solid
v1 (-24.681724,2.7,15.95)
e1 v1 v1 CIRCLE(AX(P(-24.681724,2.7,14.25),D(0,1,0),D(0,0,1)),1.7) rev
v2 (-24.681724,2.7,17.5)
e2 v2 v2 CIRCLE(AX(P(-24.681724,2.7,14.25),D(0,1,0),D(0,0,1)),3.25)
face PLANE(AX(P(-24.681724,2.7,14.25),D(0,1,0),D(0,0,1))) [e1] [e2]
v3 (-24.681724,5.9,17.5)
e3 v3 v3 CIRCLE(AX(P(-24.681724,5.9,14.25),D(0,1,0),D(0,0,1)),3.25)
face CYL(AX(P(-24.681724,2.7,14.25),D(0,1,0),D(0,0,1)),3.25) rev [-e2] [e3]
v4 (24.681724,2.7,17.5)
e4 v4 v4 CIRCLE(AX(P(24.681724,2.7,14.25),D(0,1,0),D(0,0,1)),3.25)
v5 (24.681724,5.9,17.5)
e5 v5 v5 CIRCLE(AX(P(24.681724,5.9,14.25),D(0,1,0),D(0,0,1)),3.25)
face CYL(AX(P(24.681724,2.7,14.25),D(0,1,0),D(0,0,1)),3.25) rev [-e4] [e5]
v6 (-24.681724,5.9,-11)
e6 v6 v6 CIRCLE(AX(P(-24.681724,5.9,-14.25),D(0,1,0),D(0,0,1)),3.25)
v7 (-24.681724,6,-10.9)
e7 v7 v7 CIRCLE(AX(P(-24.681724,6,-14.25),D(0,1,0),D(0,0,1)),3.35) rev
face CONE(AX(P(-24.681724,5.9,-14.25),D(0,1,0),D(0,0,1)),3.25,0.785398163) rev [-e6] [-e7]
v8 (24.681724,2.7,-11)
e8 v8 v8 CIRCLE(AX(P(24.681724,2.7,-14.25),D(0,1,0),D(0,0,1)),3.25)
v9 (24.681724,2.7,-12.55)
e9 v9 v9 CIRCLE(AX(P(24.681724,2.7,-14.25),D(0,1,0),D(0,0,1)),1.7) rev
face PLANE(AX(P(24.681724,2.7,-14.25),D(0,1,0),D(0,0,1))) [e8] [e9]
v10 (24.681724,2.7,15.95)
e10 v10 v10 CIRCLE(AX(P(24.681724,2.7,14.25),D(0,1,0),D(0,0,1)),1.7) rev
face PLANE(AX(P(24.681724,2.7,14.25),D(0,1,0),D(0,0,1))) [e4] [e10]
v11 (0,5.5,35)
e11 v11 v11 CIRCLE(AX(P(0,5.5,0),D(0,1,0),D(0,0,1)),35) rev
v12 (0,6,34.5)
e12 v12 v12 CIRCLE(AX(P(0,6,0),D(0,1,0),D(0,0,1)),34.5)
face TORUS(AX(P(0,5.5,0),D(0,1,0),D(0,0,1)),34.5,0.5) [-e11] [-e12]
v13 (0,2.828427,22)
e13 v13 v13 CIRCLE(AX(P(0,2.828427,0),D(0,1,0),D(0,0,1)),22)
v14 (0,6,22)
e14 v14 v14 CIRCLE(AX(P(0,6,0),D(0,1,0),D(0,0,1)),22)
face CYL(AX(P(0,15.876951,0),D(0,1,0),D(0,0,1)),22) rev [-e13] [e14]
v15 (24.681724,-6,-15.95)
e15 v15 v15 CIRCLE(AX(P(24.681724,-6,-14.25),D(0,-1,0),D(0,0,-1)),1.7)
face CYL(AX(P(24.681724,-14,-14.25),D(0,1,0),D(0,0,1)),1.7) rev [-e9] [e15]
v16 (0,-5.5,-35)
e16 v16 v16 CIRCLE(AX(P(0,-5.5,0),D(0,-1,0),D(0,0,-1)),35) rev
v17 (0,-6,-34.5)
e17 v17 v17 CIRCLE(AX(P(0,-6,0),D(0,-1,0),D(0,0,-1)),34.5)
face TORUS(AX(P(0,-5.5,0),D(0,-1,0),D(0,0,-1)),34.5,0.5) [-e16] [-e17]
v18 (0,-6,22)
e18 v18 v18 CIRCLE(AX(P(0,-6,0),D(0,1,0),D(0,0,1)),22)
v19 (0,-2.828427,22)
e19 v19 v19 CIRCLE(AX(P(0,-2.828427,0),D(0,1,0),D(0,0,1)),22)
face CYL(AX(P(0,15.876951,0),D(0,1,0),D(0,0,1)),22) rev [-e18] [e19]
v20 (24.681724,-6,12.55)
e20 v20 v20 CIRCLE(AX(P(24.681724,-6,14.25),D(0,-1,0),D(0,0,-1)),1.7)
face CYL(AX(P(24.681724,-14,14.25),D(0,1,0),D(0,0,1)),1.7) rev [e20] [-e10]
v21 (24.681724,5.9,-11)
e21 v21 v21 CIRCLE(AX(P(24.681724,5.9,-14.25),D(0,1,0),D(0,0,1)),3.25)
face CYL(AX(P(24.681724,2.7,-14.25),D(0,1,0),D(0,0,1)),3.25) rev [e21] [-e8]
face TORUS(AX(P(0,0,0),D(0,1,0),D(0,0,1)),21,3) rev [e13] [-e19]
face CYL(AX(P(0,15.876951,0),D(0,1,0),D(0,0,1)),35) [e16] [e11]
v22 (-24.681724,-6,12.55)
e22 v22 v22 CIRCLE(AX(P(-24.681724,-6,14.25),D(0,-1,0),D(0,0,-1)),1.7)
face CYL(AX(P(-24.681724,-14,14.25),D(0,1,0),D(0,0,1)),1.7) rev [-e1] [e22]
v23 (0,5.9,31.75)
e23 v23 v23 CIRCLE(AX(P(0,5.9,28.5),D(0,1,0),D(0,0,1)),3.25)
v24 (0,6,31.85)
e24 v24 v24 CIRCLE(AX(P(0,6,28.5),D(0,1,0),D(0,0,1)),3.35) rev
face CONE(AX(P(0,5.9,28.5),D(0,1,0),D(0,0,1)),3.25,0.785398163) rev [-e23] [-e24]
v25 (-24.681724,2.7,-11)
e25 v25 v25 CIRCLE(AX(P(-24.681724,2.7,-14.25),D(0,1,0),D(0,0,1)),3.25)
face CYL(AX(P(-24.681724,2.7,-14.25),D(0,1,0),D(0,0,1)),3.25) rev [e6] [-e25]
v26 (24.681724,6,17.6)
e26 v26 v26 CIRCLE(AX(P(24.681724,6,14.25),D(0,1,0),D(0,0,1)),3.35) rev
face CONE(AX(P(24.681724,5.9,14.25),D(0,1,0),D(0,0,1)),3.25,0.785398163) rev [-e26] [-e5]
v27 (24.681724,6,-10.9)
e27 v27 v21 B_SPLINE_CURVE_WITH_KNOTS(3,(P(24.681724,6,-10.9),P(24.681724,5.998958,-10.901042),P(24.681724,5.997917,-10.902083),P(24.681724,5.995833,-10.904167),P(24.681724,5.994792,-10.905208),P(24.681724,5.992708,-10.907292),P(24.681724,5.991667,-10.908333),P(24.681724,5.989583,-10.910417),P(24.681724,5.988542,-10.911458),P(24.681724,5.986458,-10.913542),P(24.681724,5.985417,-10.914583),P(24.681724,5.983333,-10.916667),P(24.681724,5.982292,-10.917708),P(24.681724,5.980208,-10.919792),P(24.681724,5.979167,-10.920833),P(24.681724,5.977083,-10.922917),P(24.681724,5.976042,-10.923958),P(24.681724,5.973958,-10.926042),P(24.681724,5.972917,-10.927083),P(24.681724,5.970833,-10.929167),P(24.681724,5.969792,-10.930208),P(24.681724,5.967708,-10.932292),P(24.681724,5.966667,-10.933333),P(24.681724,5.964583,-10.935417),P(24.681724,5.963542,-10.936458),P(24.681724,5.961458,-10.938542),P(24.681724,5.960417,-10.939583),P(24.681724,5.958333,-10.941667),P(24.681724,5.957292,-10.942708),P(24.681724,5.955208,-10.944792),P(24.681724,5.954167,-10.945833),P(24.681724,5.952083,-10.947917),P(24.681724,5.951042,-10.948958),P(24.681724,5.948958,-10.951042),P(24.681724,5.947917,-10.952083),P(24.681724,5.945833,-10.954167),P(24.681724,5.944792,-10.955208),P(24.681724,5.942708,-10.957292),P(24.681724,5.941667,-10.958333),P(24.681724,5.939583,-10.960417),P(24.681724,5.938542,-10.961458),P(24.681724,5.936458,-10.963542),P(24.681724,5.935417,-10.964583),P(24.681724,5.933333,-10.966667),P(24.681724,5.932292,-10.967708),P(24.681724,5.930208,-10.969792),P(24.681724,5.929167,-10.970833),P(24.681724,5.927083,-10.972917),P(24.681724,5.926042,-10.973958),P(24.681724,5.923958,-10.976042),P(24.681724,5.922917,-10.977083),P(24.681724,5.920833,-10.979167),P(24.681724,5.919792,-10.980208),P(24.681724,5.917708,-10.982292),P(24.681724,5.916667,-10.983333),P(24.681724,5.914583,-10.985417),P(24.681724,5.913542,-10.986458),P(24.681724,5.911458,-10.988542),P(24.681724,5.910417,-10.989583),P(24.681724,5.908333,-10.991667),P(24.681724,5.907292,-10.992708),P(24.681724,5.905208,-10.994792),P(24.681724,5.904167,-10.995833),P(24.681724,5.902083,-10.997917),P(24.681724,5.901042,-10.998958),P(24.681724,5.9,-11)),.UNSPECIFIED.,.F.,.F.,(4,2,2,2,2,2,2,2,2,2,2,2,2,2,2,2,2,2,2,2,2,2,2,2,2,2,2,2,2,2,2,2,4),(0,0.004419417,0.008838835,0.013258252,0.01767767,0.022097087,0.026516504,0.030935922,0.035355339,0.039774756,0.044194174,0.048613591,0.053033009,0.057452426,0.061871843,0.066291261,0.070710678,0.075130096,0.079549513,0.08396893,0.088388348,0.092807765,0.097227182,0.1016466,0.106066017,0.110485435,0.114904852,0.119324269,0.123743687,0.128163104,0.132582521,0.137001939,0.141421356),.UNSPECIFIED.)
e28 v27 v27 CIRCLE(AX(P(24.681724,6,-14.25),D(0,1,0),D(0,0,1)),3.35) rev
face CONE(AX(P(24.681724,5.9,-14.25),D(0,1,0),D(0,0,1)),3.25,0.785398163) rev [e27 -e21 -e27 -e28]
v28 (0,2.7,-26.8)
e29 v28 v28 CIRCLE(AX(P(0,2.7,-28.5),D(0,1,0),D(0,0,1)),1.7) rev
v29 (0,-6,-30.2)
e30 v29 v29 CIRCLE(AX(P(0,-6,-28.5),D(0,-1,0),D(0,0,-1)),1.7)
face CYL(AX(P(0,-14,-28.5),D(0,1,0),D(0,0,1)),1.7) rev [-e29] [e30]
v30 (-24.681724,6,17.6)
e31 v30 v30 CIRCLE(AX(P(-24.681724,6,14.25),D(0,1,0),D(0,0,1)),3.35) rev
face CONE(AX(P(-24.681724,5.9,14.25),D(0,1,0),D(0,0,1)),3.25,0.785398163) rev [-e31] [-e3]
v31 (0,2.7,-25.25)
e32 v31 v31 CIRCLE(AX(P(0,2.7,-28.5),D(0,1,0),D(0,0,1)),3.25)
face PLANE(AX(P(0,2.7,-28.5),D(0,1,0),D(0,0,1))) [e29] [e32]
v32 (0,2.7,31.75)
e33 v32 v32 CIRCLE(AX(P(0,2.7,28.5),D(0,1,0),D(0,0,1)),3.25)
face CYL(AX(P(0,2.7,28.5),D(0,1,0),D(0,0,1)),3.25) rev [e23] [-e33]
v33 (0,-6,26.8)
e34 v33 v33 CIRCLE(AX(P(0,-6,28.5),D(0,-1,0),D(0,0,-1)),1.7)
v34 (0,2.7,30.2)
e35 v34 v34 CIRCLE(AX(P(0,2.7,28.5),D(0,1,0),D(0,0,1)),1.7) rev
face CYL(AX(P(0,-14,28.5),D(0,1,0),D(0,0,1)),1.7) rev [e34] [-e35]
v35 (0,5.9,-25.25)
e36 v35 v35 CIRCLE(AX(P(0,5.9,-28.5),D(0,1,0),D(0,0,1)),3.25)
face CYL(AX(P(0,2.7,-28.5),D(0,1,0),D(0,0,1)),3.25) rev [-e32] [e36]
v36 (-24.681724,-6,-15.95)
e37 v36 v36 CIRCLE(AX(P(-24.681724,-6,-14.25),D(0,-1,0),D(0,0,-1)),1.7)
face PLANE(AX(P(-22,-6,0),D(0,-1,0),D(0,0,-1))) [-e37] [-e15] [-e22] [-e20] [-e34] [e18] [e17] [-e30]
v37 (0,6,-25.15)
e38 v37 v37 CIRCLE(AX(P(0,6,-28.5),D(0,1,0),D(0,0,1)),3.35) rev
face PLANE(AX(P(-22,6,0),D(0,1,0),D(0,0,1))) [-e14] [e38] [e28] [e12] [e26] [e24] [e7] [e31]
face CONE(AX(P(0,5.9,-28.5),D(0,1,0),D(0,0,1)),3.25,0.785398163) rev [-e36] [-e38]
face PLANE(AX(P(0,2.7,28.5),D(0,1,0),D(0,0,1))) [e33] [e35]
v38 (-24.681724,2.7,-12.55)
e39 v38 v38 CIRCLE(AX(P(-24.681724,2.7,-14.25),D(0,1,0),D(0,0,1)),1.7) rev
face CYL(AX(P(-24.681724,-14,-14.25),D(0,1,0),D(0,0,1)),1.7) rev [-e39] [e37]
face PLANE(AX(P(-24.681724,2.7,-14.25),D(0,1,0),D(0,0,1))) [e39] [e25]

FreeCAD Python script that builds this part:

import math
import FreeCAD as App
import Part
import Sketcher


def edges_at(feature, points):
    """Names of the edges that pass closest to the given points."""
    edges = feature.Shape.Edges
    near = lambda p: min(range(len(edges)), key=lambda i: edges[i].distToShape(Part.Vertex(*p))[0])
    return sorted({f"Edge{near(p) + 1}" for p in points})

doc = App.newDocument("Part")
body = doc.addObject("PartDesign::Body", "Body")

# Sketch on XY plane
sketch1 = doc.addObject("Sketcher::SketchObject", "Sketch")
body.addObject(sketch1)
sketch1.AttachmentSupport = (doc.XY_Plane, [""])
sketch1.MapMode = "FlatFace"
sketch1.addGeometry([
    Part.LineSegment(App.Vector(-22, 2.8, 0), App.Vector(-22, 6, 0)),  # 0
    Part.LineSegment(App.Vector(-22, 6, 0), App.Vector(-35, 6, 0)),  # 1
    Part.LineSegment(App.Vector(-35, 6, 0), App.Vector(-35, -6, 0)),  # 2
    Part.LineSegment(App.Vector(-35, -6, 0), App.Vector(-22, -6, 0)),  # 3
    Part.LineSegment(App.Vector(-22, -6, 0), App.Vector(-22, -2.8, 0)),  # 4
    Part.ArcOfCircle(Part.Circle(App.Vector(-21, 0, 0), App.Vector(0, 0, 1), 3), math.radians(109), math.radians(251)),  # 5
], False)
sketch1.addConstraint([
    Sketcher.Constraint("Coincident", 0, 2, 1, 1),
    Sketcher.Constraint("Coincident", 1, 2, 2, 1),
    Sketcher.Constraint("Coincident", 2, 2, 3, 1),
    Sketcher.Constraint("Coincident", 3, 2, 4, 1),
    Sketcher.Constraint("Coincident", 4, 2, 5, 2),
    Sketcher.Constraint("Coincident", 5, 1, 0, 1),
    Sketcher.Constraint("Vertical", 0),
    Sketcher.Constraint("Horizontal", 1),
    Sketcher.Constraint("Vertical", 2),
    Sketcher.Constraint("Horizontal", 3),
    Sketcher.Constraint("Vertical", 4),
    Sketcher.Constraint("Symmetric", 0, 2, 3, 2, -1),
    Sketcher.Constraint("PointOnObject", 5, 3, -1),
    Sketcher.Constraint("Radius", 5, 3.0),
    Sketcher.Constraint("DistanceX", 1, 2, 1, 1, 13.0),
    Sketcher.Constraint("DistanceY", 2, 2, 2, 1, 12.0),
    Sketcher.Constraint("DistanceX", 5, 3, -1, 1, 21.0),
    Sketcher.Constraint("DistanceX", 0, 2, -1, 1, 22.0),
])
revolution = doc.addObject("PartDesign::Revolution", "Revolution")
body.addObject(revolution)
revolution.Profile = sketch1
revolution.ReferenceAxis = (sketch1, ["V_Axis"])
revolution.Angle = 360
doc.recompute()

fillet = doc.addObject("PartDesign::Fillet", "Fillet")
body.addObject(fillet)
fillet.Base = (revolution, edges_at(revolution, [(0, -6, -35), (0, 6, -35)]))
fillet.Radius = 0.5

# Sketch on XZ plane
sketch2 = doc.addObject("Sketcher::SketchObject", "Sketch001")
body.addObject(sketch2)
sketch2.AttachmentSupport = (doc.XZ_Plane, [""])
sketch2.MapMode = "FlatFace"
sketch2.AttachmentOffset = App.Placement(App.Vector(0, 0, -6), App.Rotation())
sketch2.addGeometry([
    Part.Circle(App.Vector(0, -28.5, 0), App.Vector(0, 0, 1), 1.7),  # 0
    Part.Circle(App.Vector(24.7, -14.2, 0), App.Vector(0, 0, 1), 1.7),  # 1
    Part.Circle(App.Vector(24.7, 14.2, 0), App.Vector(0, 0, 1), 1.7),  # 2
    Part.Circle(App.Vector(0, 28.5, 0), App.Vector(0, 0, 1), 1.7),  # 3
    Part.Circle(App.Vector(-24.7, 14.2, 0), App.Vector(0, 0, 1), 1.7),  # 4
    Part.Circle(App.Vector(-24.7, -14.2, 0), App.Vector(0, 0, 1), 1.7),  # 5
], False)
sketch2.addConstraint([
    Sketcher.Constraint("Equal", 0, 1),
    Sketcher.Constraint("Equal", 1, 2),
    Sketcher.Constraint("Equal", 2, 3),
    Sketcher.Constraint("Equal", 3, 4),
    Sketcher.Constraint("Equal", 4, 5),
    Sketcher.Constraint("Symmetric", 0, 3, 3, 3, -1, 1),
    Sketcher.Constraint("Symmetric", 1, 3, 4, 3, -1, 1),
    Sketcher.Constraint("Symmetric", 2, 3, 5, 3, -1, 1),
    Sketcher.Constraint("Symmetric", 2, 3, 4, 3, -2),
    Sketcher.Constraint("PointOnObject", 0, 3, -2),
    Sketcher.Constraint("Diameter", 0, 3.4),
    Sketcher.Constraint("DistanceY", 0, 3, 3, 3, 57.0),
    Sketcher.Constraint("DistanceY", 1, 3, 2, 3, 28.5),
    Sketcher.Constraint("DistanceX", 4, 3, 2, 3, 49.363448),
])
pocket1 = doc.addObject("PartDesign::Pocket", "Pocket")
body.addObject(pocket1)
pocket1.Profile = sketch2
pocket1.Length = 20
pocket1.Reversed = True

# Sketch on XZ plane
sketch3 = doc.addObject("Sketcher::SketchObject", "Sketch002")
body.addObject(sketch3)
sketch3.AttachmentSupport = (doc.XZ_Plane, [""])
sketch3.MapMode = "FlatFace"
sketch3.AttachmentOffset = App.Placement(App.Vector(0, 0, -6), App.Rotation())
sketch3.addGeometry([
    Part.Circle(App.Vector(0, -28.5, 0), App.Vector(0, 0, 1), 3.2),  # 0
    Part.Circle(App.Vector(24.7, -14.2, 0), App.Vector(0, 0, 1), 3.2),  # 1
    Part.Circle(App.Vector(24.7, 14.2, 0), App.Vector(0, 0, 1), 3.2),  # 2
    Part.Circle(App.Vector(0, 28.5, 0), App.Vector(0, 0, 1), 3.2),  # 3
    Part.Circle(App.Vector(-24.7, 14.2, 0), App.Vector(0, 0, 1), 3.2),  # 4
    Part.Circle(App.Vector(-24.7, -14.2, 0), App.Vector(0, 0, 1), 3.2),  # 5
], False)
sketch3.addConstraint([
    Sketcher.Constraint("Equal", 0, 1),
    Sketcher.Constraint("Equal", 1, 2),
    Sketcher.Constraint("Equal", 2, 3),
    Sketcher.Constraint("Equal", 3, 4),
    Sketcher.Constraint("Equal", 4, 5),
    Sketcher.Constraint("Symmetric", 0, 3, 3, 3, -1, 1),
    Sketcher.Constraint("Symmetric", 1, 3, 4, 3, -1, 1),
    Sketcher.Constraint("Symmetric", 2, 3, 5, 3, -1, 1),
    Sketcher.Constraint("Symmetric", 2, 3, 4, 3, -2),
    Sketcher.Constraint("PointOnObject", 0, 3, -2),
    Sketcher.Constraint("Diameter", 0, 6.5),
    Sketcher.Constraint("DistanceY", 0, 3, 3, 3, 57.0),
    Sketcher.Constraint("DistanceY", 1, 3, 2, 3, 28.5),
    Sketcher.Constraint("DistanceX", 4, 3, 2, 3, 49.363448),
])
pocket2 = doc.addObject("PartDesign::Pocket", "Pocket001")
body.addObject(pocket2)
pocket2.Profile = sketch3
pocket2.Length = 3.3
pocket2.Reversed = True
doc.recompute()

chamfer = doc.addObject("PartDesign::Chamfer", "Chamfer")
body.addObject(chamfer)
chamfer.Base = (pocket2, edges_at(pocket2, [
    (0, 6, -31.75),
    (24.682, 6, -17.5),
    (24.682, 6, 11),
    (0, 6, 25.25),
    (-24.682, 6, 11),
    (-24.682, 6, -17.5),
]))
chamfer.Size = 0.1

doc.recompute()
